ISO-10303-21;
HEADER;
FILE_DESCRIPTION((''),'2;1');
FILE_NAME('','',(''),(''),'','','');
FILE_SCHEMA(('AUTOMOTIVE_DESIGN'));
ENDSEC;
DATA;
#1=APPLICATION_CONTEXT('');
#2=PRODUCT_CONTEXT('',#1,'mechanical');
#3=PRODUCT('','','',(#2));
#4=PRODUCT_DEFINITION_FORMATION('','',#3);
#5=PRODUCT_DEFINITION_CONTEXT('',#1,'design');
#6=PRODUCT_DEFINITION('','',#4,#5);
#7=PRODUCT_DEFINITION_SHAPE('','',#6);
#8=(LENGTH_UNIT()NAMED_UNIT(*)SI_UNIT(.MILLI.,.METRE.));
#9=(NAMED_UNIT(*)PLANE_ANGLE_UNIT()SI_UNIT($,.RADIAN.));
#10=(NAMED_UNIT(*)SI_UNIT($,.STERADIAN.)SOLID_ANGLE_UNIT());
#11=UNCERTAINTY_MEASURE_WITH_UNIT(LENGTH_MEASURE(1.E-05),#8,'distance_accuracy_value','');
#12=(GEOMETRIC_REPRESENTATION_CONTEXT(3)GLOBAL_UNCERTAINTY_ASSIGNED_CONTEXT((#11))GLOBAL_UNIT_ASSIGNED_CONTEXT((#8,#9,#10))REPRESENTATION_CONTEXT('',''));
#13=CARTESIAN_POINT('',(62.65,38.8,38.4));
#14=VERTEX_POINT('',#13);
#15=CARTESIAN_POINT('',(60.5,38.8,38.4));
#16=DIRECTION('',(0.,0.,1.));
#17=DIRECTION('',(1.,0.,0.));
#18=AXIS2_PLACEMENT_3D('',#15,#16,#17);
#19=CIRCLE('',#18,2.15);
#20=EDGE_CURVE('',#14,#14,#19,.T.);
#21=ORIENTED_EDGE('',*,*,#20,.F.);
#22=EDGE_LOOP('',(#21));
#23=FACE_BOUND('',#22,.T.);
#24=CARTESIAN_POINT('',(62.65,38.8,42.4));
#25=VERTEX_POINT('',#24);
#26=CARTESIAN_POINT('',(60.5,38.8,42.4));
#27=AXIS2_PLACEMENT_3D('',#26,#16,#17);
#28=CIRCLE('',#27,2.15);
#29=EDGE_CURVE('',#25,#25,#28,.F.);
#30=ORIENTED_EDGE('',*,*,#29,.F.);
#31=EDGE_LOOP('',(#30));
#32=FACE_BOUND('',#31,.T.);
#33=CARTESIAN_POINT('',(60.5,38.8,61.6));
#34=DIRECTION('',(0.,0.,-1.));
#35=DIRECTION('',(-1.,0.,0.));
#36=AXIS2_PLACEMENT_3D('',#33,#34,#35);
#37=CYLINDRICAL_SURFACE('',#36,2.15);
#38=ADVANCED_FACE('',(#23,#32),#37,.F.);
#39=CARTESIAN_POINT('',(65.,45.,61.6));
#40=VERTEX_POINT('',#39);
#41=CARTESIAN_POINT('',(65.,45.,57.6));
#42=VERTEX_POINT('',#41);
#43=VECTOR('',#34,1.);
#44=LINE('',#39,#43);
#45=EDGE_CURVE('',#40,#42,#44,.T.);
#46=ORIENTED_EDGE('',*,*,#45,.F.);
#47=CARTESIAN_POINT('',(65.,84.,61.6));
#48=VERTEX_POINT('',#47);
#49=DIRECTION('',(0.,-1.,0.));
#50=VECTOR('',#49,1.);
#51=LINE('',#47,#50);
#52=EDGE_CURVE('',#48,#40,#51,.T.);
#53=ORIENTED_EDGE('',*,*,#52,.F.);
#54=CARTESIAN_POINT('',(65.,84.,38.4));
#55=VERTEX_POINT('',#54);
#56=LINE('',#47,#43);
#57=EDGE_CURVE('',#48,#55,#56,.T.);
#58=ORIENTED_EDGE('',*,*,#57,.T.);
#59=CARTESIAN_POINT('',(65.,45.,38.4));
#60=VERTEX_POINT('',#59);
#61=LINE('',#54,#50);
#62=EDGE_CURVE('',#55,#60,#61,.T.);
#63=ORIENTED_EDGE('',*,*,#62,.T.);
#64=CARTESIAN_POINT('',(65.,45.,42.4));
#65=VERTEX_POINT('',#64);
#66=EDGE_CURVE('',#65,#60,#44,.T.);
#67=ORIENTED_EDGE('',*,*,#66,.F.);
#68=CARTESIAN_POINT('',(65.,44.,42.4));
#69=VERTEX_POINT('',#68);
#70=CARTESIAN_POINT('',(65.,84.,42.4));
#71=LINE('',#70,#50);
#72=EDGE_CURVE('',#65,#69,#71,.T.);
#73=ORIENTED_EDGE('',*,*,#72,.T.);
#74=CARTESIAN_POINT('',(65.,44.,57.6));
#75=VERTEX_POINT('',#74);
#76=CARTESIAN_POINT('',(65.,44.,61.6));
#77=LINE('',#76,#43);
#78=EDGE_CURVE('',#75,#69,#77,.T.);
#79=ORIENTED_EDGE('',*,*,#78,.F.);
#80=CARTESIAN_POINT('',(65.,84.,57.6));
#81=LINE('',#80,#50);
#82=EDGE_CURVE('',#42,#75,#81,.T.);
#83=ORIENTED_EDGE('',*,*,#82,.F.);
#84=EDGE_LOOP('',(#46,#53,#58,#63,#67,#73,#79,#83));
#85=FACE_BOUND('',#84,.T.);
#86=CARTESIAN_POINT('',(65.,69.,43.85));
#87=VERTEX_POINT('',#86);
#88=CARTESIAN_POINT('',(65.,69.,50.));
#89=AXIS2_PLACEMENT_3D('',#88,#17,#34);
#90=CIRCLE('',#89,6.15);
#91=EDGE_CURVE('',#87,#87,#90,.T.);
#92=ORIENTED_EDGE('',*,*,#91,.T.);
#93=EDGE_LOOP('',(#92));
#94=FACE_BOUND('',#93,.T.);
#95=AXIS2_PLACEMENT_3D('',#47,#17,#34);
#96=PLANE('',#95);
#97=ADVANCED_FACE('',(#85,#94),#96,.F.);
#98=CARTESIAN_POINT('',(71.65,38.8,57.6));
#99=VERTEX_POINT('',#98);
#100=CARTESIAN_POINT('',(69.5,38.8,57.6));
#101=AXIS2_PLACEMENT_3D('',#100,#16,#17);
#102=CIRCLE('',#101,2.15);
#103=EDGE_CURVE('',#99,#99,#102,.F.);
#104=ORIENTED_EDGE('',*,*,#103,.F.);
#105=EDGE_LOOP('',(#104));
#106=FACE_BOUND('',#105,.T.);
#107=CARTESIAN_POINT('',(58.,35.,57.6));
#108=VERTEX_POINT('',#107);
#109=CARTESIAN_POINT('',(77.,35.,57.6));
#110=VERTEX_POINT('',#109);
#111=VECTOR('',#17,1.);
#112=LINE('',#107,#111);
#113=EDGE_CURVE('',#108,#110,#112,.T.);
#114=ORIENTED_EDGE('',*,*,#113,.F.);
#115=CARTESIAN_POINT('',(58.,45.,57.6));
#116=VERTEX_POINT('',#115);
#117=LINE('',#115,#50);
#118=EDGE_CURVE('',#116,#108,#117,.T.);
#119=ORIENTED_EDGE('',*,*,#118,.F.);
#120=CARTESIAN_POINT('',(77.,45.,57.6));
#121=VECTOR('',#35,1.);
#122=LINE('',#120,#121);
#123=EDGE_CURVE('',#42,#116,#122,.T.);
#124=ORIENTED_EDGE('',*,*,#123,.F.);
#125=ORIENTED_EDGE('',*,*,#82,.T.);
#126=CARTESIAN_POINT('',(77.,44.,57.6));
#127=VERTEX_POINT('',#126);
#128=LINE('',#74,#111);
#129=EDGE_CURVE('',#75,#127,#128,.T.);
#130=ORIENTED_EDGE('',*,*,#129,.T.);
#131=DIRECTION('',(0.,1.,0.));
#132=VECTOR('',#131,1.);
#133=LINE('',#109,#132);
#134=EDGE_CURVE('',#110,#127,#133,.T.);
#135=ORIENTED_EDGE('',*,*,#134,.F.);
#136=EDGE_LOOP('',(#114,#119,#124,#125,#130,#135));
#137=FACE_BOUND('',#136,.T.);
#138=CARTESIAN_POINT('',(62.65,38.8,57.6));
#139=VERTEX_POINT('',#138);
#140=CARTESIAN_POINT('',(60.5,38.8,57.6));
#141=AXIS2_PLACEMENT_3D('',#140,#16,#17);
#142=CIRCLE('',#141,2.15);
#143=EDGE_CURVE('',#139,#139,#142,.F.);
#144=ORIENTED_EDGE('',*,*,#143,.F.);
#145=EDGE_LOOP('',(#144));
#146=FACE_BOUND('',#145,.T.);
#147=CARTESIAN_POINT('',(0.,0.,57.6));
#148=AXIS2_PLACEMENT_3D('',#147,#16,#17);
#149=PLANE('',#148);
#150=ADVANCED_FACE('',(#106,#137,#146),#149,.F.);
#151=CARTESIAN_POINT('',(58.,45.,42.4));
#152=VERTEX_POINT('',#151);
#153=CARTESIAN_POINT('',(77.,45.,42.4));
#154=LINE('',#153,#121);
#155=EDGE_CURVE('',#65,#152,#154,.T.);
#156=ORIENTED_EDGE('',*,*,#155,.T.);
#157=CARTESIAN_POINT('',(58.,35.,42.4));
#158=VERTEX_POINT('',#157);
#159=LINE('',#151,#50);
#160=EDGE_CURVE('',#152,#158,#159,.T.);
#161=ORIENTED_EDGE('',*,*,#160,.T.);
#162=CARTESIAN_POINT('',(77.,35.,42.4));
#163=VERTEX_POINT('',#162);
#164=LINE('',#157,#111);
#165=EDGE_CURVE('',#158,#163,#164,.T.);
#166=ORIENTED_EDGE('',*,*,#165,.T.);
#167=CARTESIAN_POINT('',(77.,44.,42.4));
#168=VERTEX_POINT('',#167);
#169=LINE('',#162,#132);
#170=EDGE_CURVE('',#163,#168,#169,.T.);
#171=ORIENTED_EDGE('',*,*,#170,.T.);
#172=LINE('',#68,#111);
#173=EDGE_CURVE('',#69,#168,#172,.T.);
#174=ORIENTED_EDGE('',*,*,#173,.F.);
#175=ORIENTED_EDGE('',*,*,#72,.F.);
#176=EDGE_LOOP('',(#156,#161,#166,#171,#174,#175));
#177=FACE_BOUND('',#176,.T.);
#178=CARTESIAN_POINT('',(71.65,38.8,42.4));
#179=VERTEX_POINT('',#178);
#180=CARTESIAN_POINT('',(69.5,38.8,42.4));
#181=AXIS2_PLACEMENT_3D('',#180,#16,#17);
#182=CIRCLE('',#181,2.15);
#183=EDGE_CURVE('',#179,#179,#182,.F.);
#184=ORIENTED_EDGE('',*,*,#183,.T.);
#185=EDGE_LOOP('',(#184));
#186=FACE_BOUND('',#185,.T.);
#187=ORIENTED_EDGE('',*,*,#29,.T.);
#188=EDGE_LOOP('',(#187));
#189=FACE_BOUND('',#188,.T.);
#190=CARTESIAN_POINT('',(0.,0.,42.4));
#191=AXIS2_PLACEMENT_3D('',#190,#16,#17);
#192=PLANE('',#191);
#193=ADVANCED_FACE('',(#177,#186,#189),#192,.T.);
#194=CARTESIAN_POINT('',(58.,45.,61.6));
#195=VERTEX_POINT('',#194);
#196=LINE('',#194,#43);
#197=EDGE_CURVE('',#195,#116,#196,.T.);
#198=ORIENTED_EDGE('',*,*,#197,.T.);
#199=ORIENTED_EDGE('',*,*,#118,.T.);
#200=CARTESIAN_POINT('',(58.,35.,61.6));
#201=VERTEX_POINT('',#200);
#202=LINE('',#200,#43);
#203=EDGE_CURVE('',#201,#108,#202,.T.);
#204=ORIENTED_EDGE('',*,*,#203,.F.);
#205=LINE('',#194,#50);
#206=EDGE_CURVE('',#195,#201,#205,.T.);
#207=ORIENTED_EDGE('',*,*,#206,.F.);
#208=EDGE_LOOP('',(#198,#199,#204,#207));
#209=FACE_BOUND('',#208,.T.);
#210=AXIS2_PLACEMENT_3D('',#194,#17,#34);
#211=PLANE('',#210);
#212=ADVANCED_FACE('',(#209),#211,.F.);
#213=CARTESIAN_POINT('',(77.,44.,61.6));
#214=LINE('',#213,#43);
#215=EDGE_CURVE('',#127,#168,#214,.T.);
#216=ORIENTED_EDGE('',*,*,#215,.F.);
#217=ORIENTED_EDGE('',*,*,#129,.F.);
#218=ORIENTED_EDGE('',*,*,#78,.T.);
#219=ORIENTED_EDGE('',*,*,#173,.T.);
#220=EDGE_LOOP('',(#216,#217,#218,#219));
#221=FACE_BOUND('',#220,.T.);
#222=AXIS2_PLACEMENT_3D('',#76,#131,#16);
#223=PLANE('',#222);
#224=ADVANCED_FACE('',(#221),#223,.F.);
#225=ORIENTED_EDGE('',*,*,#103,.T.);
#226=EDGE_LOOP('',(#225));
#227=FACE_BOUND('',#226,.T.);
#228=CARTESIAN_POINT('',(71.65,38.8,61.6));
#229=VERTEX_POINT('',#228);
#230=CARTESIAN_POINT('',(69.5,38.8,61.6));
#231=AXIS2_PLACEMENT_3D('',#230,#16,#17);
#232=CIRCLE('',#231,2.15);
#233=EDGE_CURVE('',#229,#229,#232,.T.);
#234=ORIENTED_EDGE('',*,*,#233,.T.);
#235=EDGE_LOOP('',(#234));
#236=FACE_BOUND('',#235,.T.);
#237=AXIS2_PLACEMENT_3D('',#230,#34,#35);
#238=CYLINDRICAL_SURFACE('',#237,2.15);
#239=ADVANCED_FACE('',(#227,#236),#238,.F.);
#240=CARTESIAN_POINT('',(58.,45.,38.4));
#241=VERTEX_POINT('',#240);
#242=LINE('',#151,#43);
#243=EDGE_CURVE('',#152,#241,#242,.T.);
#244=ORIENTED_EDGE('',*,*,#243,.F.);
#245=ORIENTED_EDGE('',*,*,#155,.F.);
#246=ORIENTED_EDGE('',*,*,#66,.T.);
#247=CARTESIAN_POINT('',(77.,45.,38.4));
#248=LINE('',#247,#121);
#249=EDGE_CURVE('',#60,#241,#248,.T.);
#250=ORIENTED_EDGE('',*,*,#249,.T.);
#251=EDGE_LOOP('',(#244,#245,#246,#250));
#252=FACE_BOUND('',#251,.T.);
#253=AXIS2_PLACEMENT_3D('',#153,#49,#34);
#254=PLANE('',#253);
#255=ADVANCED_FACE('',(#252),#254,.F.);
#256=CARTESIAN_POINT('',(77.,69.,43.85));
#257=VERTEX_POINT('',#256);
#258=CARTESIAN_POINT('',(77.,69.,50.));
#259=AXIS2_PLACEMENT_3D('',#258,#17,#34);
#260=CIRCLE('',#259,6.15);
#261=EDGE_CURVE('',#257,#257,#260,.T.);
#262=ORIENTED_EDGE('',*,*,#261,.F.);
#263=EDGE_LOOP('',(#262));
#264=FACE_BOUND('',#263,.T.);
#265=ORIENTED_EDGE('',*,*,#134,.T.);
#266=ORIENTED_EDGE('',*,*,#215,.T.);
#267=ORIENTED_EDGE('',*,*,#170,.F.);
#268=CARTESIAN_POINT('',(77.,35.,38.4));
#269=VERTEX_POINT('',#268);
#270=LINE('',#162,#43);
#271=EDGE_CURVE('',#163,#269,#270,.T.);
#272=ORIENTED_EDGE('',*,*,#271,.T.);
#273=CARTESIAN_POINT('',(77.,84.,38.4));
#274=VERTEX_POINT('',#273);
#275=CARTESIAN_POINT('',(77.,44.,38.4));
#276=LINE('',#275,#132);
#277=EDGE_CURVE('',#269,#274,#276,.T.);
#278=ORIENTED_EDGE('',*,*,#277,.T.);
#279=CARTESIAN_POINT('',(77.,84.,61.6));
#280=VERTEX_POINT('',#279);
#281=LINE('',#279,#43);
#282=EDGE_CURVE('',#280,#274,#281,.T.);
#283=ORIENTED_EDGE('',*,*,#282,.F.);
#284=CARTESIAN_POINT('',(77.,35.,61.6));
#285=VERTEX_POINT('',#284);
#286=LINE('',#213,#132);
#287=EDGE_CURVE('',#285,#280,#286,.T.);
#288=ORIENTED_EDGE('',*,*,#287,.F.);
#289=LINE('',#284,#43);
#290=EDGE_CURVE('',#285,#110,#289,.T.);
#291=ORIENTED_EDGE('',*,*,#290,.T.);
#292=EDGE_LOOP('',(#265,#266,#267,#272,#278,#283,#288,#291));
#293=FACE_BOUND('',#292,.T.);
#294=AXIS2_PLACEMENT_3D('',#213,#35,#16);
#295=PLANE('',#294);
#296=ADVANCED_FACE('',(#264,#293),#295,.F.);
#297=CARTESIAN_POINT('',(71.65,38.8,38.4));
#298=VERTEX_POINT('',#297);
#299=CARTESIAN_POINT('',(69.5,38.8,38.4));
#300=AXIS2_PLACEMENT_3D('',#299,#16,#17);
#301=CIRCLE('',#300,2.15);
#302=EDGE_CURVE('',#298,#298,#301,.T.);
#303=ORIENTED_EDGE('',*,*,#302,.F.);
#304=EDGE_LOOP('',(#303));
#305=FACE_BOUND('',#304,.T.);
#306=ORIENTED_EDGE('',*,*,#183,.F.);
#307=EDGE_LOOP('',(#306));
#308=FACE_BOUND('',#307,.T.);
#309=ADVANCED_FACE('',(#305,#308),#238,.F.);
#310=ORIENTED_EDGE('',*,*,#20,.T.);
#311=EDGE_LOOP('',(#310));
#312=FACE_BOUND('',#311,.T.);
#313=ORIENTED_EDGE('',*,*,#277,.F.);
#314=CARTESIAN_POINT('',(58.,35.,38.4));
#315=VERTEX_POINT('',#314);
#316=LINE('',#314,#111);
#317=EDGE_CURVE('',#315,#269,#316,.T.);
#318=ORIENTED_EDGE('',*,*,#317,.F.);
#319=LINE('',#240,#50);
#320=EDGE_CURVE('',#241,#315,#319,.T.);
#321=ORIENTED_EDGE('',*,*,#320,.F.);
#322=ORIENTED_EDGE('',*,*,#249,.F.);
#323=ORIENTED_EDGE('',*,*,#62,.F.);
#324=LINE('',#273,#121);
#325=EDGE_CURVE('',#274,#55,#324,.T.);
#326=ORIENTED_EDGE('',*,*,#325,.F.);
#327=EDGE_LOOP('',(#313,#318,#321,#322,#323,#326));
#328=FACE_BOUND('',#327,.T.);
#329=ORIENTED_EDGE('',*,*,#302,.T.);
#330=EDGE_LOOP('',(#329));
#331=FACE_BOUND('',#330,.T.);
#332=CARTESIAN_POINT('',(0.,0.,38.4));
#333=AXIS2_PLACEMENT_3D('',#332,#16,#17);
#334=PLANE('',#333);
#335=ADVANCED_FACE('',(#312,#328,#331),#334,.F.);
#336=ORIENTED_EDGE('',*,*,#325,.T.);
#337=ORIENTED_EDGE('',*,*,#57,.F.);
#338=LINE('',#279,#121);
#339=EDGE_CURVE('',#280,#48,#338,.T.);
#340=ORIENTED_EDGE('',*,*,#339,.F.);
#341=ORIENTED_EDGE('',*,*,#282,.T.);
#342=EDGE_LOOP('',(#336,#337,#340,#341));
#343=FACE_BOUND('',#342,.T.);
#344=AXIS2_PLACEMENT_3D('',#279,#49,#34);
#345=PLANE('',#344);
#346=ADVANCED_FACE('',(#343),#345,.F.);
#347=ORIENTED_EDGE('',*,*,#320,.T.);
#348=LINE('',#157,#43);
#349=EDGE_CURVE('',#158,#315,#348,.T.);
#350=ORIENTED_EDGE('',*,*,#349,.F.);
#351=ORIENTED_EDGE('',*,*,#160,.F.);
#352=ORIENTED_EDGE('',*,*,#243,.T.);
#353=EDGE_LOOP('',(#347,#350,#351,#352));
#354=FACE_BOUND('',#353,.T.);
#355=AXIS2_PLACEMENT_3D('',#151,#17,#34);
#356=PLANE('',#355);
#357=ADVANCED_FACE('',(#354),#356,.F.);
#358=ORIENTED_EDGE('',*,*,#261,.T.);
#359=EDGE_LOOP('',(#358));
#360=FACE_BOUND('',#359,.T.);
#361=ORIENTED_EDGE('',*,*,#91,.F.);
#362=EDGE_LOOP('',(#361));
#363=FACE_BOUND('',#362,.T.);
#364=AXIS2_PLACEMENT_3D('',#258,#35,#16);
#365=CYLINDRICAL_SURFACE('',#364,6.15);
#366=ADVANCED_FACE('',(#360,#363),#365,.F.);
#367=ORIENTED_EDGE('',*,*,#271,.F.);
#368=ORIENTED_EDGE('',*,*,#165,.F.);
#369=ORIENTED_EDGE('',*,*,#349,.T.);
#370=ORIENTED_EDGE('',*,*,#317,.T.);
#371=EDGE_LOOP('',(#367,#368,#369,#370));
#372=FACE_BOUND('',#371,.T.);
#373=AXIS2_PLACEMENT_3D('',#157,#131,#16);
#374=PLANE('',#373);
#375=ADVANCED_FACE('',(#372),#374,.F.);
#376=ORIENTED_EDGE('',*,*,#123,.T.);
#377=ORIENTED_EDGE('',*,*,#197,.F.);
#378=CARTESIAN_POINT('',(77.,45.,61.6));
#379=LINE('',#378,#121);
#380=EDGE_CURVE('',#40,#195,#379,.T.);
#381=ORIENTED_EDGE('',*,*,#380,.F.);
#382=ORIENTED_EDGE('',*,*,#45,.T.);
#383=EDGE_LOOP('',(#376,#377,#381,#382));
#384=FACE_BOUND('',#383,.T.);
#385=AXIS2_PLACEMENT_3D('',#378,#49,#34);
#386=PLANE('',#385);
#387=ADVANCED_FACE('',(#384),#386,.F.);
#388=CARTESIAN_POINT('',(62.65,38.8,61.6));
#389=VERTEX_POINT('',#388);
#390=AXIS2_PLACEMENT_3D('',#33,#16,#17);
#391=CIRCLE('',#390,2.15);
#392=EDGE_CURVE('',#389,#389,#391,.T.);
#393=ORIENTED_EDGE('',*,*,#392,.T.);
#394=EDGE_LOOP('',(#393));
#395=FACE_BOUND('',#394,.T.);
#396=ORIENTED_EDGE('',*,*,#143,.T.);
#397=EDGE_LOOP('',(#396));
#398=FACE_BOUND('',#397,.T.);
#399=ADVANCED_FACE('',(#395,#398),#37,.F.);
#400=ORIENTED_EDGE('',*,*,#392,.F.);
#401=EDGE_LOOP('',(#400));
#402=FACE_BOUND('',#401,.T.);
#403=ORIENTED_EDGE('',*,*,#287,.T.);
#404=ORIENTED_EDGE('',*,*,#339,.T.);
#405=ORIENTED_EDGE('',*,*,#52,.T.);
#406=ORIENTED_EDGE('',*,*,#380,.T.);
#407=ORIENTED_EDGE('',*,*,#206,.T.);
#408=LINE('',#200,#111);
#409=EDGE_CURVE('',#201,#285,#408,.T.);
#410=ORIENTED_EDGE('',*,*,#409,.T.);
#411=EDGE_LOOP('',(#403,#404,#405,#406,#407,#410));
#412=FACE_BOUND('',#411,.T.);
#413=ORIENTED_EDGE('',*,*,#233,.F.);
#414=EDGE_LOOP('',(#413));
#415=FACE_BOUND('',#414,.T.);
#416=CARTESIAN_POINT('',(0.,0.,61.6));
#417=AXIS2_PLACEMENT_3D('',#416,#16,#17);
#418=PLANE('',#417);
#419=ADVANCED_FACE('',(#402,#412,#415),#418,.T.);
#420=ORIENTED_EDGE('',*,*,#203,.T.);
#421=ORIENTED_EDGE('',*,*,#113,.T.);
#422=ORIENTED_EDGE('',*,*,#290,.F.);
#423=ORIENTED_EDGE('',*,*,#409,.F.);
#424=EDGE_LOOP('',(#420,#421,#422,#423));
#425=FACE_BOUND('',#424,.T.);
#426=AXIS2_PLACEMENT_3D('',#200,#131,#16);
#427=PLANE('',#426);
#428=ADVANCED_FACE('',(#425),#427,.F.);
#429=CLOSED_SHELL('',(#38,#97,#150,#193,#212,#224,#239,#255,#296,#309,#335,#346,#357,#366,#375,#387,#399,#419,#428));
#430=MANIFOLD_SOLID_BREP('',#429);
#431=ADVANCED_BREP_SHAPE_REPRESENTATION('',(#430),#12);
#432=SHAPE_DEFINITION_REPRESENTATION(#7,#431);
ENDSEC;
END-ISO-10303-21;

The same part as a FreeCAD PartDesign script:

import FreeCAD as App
import Part
import Sketcher
Q = App.Units.Quantity


def add_polygon(sketch, points):
    """Adds a closed chain of lines whose ends are joined by coincident constraints."""
    first, n = sketch.GeometryCount, len(points)
    for a, b in zip(points, points[1:] + points[:1]):
        sketch.addGeometry(Part.LineSegment(App.Vector(*a, 0), App.Vector(*b, 0)), False)
    for i in range(n):
        sketch.addConstraint(Sketcher.Constraint("Coincident", first + i, 2, first + (i + 1) % n, 1))

doc = App.newDocument("Part")
body = doc.addObject("PartDesign::Body", "Body")

sketch1 = body.newObject("Sketcher::SketchObject", "Sketch")
sketch1.AttachmentSupport = (doc.getObject("XY_Plane"), [""])
sketch1.MapMode = "FlatFace"
sketch1.AttachmentOffset = App.Placement(App.Vector(0, 0, 38.4), App.Rotation())
add_polygon(sketch1, [(65, 84), (65, 44), (77, 44), (77, 84)])
sketch1.addConstraint(Sketcher.Constraint("Vertical", 0))
sketch1.addConstraint(Sketcher.Constraint("Horizontal", 1))
sketch1.addConstraint(Sketcher.Constraint("Vertical", 2))
sketch1.addConstraint(Sketcher.Constraint("Horizontal", 3))
sketch1.addConstraint(Sketcher.Constraint("DistanceX", 1, 1, 1, 2, Q("12 mm")))
sketch1.addConstraint(Sketcher.Constraint("DistanceY", 0, 2, 0, 1, Q("40 mm")))
sketch1.addConstraint(Sketcher.Constraint("DistanceX", -1, 1, 0, 2, Q("65 mm")))
sketch1.addConstraint(Sketcher.Constraint("DistanceY", -1, 1, 0, 2, Q("44 mm")))
pad1 = body.newObject("PartDesign::Pad", "Pad")
pad1.Profile = sketch1
pad1.Length = 23.2

sketch2 = body.newObject("Sketcher::SketchObject", "Sketch001")
sketch2.AttachmentSupport = (doc.getObject("XY_Plane"), [""])
sketch2.MapMode = "FlatFace"
sketch2.AttachmentOffset = App.Placement(App.Vector(0, 0, 38.4), App.Rotation())
add_polygon(sketch2, [(58, 45), (58, 35), (77, 35), (77, 45)])
sketch2.addConstraint(Sketcher.Constraint("Vertical", 0))
sketch2.addConstraint(Sketcher.Constraint("Horizontal", 1))
sketch2.addConstraint(Sketcher.Constraint("Vertical", 2))
sketch2.addConstraint(Sketcher.Constraint("Horizontal", 3))
sketch2.addConstraint(Sketcher.Constraint("DistanceX", 1, 1, 1, 2, Q("19 mm")))
sketch2.addConstraint(Sketcher.Constraint("DistanceY", 0, 2, 0, 1, Q("10 mm")))
sketch2.addConstraint(Sketcher.Constraint("DistanceX", -1, 1, 0, 2, Q("58 mm")))
sketch2.addConstraint(Sketcher.Constraint("DistanceY", -1, 1, 0, 2, Q("35 mm")))
pad2 = body.newObject("PartDesign::Pad", "Pad001")
pad2.Profile = sketch2
pad2.Length = 4

sketch3 = body.newObject("Sketcher::SketchObject", "Sketch002")
sketch3.AttachmentSupport = (doc.getObject("XY_Plane"), [""])
sketch3.MapMode = "FlatFace"
sketch3.AttachmentOffset = App.Placement(App.Vector(0, 0, 57.6), App.Rotation())
add_polygon(sketch3, [(58, 45), (58, 35), (77, 35), (77, 45)])
sketch3.addConstraint(Sketcher.Constraint("Vertical", 0))
sketch3.addConstraint(Sketcher.Constraint("Horizontal", 1))
sketch3.addConstraint(Sketcher.Constraint("Vertical", 2))
sketch3.addConstraint(Sketcher.Constraint("Horizontal", 3))
sketch3.addConstraint(Sketcher.Constraint("DistanceX", 1, 1, 1, 2, Q("19 mm")))
sketch3.addConstraint(Sketcher.Constraint("DistanceY", 0, 2, 0, 1, Q("10 mm")))
sketch3.addConstraint(Sketcher.Constraint("DistanceX", -1, 1, 0, 2, Q("58 mm")))
sketch3.addConstraint(Sketcher.Constraint("DistanceY", -1, 1, 0, 2, Q("35 mm")))
pad3 = body.newObject("PartDesign::Pad", "Pad002")
pad3.Profile = sketch3
pad3.Length = 4

sketch4 = body.newObject("Sketcher::SketchObject", "Sketch003")
sketch4.AttachmentSupport = (doc.getObject("XY_Plane"), [""])
sketch4.MapMode = "FlatFace"
sketch4.AttachmentOffset = App.Placement(App.Vector(0, 0, 38.4), App.Rotation())
sketch4.addGeometry(Part.Circle(App.Vector(60.5, 38.8, 0), App.Vector(0, 0, 1), 2.1), False)
sketch4.addGeometry(Part.Circle(App.Vector(69.5, 38.8, 0), App.Vector(0, 0, 1), 2.1), False)
sketch4.addConstraint(Sketcher.Constraint("Equal", 0, 1))
sketch4.addConstraint(Sketcher.Constraint("Horizontal", 0, 3, 1, 3))
sketch4.addConstraint(Sketcher.Constraint("Diameter", 0, Q("4.3 mm")))
sketch4.addConstraint(Sketcher.Constraint("DistanceX", 0, 3, 1, 3, Q("9 mm")))
sketch4.addConstraint(Sketcher.Constraint("DistanceX", -1, 1, 0, 3, Q("60.5 mm")))
sketch4.addConstraint(Sketcher.Constraint("DistanceY", -1, 1, 0, 3, Q("38.8 mm")))
pocket1 = body.newObject("PartDesign::Pocket", "Pocket")
pocket1.Profile = sketch4
pocket1.Length = 23.2
pocket1.Reversed = True

sketch5 = body.newObject("Sketcher::SketchObject", "Sketch004")
sketch5.AttachmentSupport = (doc.getObject("YZ_Plane"), [""])
sketch5.MapMode = "FlatFace"
sketch5.AttachmentOffset = App.Placement(App.Vector(0, 0, 65), App.Rotation())
sketch5.addGeometry(Part.Circle(App.Vector(69, 50, 0), App.Vector(0, 0, 1), 6), False)
sketch5.addConstraint(Sketcher.Constraint("Diameter", 0, Q("12.3 mm")))
sketch5.addConstraint(Sketcher.Constraint("DistanceX", -1, 1, 0, 3, Q("69 mm")))
sketch5.addConstraint(Sketcher.Constraint("DistanceY", -1, 1, 0, 3, Q("50 mm")))
pocket2 = body.newObject("PartDesign::Pocket", "Pocket001")
pocket2.Profile = sketch5
pocket2.Length = 12
pocket2.Reversed = True

doc.recompute()
